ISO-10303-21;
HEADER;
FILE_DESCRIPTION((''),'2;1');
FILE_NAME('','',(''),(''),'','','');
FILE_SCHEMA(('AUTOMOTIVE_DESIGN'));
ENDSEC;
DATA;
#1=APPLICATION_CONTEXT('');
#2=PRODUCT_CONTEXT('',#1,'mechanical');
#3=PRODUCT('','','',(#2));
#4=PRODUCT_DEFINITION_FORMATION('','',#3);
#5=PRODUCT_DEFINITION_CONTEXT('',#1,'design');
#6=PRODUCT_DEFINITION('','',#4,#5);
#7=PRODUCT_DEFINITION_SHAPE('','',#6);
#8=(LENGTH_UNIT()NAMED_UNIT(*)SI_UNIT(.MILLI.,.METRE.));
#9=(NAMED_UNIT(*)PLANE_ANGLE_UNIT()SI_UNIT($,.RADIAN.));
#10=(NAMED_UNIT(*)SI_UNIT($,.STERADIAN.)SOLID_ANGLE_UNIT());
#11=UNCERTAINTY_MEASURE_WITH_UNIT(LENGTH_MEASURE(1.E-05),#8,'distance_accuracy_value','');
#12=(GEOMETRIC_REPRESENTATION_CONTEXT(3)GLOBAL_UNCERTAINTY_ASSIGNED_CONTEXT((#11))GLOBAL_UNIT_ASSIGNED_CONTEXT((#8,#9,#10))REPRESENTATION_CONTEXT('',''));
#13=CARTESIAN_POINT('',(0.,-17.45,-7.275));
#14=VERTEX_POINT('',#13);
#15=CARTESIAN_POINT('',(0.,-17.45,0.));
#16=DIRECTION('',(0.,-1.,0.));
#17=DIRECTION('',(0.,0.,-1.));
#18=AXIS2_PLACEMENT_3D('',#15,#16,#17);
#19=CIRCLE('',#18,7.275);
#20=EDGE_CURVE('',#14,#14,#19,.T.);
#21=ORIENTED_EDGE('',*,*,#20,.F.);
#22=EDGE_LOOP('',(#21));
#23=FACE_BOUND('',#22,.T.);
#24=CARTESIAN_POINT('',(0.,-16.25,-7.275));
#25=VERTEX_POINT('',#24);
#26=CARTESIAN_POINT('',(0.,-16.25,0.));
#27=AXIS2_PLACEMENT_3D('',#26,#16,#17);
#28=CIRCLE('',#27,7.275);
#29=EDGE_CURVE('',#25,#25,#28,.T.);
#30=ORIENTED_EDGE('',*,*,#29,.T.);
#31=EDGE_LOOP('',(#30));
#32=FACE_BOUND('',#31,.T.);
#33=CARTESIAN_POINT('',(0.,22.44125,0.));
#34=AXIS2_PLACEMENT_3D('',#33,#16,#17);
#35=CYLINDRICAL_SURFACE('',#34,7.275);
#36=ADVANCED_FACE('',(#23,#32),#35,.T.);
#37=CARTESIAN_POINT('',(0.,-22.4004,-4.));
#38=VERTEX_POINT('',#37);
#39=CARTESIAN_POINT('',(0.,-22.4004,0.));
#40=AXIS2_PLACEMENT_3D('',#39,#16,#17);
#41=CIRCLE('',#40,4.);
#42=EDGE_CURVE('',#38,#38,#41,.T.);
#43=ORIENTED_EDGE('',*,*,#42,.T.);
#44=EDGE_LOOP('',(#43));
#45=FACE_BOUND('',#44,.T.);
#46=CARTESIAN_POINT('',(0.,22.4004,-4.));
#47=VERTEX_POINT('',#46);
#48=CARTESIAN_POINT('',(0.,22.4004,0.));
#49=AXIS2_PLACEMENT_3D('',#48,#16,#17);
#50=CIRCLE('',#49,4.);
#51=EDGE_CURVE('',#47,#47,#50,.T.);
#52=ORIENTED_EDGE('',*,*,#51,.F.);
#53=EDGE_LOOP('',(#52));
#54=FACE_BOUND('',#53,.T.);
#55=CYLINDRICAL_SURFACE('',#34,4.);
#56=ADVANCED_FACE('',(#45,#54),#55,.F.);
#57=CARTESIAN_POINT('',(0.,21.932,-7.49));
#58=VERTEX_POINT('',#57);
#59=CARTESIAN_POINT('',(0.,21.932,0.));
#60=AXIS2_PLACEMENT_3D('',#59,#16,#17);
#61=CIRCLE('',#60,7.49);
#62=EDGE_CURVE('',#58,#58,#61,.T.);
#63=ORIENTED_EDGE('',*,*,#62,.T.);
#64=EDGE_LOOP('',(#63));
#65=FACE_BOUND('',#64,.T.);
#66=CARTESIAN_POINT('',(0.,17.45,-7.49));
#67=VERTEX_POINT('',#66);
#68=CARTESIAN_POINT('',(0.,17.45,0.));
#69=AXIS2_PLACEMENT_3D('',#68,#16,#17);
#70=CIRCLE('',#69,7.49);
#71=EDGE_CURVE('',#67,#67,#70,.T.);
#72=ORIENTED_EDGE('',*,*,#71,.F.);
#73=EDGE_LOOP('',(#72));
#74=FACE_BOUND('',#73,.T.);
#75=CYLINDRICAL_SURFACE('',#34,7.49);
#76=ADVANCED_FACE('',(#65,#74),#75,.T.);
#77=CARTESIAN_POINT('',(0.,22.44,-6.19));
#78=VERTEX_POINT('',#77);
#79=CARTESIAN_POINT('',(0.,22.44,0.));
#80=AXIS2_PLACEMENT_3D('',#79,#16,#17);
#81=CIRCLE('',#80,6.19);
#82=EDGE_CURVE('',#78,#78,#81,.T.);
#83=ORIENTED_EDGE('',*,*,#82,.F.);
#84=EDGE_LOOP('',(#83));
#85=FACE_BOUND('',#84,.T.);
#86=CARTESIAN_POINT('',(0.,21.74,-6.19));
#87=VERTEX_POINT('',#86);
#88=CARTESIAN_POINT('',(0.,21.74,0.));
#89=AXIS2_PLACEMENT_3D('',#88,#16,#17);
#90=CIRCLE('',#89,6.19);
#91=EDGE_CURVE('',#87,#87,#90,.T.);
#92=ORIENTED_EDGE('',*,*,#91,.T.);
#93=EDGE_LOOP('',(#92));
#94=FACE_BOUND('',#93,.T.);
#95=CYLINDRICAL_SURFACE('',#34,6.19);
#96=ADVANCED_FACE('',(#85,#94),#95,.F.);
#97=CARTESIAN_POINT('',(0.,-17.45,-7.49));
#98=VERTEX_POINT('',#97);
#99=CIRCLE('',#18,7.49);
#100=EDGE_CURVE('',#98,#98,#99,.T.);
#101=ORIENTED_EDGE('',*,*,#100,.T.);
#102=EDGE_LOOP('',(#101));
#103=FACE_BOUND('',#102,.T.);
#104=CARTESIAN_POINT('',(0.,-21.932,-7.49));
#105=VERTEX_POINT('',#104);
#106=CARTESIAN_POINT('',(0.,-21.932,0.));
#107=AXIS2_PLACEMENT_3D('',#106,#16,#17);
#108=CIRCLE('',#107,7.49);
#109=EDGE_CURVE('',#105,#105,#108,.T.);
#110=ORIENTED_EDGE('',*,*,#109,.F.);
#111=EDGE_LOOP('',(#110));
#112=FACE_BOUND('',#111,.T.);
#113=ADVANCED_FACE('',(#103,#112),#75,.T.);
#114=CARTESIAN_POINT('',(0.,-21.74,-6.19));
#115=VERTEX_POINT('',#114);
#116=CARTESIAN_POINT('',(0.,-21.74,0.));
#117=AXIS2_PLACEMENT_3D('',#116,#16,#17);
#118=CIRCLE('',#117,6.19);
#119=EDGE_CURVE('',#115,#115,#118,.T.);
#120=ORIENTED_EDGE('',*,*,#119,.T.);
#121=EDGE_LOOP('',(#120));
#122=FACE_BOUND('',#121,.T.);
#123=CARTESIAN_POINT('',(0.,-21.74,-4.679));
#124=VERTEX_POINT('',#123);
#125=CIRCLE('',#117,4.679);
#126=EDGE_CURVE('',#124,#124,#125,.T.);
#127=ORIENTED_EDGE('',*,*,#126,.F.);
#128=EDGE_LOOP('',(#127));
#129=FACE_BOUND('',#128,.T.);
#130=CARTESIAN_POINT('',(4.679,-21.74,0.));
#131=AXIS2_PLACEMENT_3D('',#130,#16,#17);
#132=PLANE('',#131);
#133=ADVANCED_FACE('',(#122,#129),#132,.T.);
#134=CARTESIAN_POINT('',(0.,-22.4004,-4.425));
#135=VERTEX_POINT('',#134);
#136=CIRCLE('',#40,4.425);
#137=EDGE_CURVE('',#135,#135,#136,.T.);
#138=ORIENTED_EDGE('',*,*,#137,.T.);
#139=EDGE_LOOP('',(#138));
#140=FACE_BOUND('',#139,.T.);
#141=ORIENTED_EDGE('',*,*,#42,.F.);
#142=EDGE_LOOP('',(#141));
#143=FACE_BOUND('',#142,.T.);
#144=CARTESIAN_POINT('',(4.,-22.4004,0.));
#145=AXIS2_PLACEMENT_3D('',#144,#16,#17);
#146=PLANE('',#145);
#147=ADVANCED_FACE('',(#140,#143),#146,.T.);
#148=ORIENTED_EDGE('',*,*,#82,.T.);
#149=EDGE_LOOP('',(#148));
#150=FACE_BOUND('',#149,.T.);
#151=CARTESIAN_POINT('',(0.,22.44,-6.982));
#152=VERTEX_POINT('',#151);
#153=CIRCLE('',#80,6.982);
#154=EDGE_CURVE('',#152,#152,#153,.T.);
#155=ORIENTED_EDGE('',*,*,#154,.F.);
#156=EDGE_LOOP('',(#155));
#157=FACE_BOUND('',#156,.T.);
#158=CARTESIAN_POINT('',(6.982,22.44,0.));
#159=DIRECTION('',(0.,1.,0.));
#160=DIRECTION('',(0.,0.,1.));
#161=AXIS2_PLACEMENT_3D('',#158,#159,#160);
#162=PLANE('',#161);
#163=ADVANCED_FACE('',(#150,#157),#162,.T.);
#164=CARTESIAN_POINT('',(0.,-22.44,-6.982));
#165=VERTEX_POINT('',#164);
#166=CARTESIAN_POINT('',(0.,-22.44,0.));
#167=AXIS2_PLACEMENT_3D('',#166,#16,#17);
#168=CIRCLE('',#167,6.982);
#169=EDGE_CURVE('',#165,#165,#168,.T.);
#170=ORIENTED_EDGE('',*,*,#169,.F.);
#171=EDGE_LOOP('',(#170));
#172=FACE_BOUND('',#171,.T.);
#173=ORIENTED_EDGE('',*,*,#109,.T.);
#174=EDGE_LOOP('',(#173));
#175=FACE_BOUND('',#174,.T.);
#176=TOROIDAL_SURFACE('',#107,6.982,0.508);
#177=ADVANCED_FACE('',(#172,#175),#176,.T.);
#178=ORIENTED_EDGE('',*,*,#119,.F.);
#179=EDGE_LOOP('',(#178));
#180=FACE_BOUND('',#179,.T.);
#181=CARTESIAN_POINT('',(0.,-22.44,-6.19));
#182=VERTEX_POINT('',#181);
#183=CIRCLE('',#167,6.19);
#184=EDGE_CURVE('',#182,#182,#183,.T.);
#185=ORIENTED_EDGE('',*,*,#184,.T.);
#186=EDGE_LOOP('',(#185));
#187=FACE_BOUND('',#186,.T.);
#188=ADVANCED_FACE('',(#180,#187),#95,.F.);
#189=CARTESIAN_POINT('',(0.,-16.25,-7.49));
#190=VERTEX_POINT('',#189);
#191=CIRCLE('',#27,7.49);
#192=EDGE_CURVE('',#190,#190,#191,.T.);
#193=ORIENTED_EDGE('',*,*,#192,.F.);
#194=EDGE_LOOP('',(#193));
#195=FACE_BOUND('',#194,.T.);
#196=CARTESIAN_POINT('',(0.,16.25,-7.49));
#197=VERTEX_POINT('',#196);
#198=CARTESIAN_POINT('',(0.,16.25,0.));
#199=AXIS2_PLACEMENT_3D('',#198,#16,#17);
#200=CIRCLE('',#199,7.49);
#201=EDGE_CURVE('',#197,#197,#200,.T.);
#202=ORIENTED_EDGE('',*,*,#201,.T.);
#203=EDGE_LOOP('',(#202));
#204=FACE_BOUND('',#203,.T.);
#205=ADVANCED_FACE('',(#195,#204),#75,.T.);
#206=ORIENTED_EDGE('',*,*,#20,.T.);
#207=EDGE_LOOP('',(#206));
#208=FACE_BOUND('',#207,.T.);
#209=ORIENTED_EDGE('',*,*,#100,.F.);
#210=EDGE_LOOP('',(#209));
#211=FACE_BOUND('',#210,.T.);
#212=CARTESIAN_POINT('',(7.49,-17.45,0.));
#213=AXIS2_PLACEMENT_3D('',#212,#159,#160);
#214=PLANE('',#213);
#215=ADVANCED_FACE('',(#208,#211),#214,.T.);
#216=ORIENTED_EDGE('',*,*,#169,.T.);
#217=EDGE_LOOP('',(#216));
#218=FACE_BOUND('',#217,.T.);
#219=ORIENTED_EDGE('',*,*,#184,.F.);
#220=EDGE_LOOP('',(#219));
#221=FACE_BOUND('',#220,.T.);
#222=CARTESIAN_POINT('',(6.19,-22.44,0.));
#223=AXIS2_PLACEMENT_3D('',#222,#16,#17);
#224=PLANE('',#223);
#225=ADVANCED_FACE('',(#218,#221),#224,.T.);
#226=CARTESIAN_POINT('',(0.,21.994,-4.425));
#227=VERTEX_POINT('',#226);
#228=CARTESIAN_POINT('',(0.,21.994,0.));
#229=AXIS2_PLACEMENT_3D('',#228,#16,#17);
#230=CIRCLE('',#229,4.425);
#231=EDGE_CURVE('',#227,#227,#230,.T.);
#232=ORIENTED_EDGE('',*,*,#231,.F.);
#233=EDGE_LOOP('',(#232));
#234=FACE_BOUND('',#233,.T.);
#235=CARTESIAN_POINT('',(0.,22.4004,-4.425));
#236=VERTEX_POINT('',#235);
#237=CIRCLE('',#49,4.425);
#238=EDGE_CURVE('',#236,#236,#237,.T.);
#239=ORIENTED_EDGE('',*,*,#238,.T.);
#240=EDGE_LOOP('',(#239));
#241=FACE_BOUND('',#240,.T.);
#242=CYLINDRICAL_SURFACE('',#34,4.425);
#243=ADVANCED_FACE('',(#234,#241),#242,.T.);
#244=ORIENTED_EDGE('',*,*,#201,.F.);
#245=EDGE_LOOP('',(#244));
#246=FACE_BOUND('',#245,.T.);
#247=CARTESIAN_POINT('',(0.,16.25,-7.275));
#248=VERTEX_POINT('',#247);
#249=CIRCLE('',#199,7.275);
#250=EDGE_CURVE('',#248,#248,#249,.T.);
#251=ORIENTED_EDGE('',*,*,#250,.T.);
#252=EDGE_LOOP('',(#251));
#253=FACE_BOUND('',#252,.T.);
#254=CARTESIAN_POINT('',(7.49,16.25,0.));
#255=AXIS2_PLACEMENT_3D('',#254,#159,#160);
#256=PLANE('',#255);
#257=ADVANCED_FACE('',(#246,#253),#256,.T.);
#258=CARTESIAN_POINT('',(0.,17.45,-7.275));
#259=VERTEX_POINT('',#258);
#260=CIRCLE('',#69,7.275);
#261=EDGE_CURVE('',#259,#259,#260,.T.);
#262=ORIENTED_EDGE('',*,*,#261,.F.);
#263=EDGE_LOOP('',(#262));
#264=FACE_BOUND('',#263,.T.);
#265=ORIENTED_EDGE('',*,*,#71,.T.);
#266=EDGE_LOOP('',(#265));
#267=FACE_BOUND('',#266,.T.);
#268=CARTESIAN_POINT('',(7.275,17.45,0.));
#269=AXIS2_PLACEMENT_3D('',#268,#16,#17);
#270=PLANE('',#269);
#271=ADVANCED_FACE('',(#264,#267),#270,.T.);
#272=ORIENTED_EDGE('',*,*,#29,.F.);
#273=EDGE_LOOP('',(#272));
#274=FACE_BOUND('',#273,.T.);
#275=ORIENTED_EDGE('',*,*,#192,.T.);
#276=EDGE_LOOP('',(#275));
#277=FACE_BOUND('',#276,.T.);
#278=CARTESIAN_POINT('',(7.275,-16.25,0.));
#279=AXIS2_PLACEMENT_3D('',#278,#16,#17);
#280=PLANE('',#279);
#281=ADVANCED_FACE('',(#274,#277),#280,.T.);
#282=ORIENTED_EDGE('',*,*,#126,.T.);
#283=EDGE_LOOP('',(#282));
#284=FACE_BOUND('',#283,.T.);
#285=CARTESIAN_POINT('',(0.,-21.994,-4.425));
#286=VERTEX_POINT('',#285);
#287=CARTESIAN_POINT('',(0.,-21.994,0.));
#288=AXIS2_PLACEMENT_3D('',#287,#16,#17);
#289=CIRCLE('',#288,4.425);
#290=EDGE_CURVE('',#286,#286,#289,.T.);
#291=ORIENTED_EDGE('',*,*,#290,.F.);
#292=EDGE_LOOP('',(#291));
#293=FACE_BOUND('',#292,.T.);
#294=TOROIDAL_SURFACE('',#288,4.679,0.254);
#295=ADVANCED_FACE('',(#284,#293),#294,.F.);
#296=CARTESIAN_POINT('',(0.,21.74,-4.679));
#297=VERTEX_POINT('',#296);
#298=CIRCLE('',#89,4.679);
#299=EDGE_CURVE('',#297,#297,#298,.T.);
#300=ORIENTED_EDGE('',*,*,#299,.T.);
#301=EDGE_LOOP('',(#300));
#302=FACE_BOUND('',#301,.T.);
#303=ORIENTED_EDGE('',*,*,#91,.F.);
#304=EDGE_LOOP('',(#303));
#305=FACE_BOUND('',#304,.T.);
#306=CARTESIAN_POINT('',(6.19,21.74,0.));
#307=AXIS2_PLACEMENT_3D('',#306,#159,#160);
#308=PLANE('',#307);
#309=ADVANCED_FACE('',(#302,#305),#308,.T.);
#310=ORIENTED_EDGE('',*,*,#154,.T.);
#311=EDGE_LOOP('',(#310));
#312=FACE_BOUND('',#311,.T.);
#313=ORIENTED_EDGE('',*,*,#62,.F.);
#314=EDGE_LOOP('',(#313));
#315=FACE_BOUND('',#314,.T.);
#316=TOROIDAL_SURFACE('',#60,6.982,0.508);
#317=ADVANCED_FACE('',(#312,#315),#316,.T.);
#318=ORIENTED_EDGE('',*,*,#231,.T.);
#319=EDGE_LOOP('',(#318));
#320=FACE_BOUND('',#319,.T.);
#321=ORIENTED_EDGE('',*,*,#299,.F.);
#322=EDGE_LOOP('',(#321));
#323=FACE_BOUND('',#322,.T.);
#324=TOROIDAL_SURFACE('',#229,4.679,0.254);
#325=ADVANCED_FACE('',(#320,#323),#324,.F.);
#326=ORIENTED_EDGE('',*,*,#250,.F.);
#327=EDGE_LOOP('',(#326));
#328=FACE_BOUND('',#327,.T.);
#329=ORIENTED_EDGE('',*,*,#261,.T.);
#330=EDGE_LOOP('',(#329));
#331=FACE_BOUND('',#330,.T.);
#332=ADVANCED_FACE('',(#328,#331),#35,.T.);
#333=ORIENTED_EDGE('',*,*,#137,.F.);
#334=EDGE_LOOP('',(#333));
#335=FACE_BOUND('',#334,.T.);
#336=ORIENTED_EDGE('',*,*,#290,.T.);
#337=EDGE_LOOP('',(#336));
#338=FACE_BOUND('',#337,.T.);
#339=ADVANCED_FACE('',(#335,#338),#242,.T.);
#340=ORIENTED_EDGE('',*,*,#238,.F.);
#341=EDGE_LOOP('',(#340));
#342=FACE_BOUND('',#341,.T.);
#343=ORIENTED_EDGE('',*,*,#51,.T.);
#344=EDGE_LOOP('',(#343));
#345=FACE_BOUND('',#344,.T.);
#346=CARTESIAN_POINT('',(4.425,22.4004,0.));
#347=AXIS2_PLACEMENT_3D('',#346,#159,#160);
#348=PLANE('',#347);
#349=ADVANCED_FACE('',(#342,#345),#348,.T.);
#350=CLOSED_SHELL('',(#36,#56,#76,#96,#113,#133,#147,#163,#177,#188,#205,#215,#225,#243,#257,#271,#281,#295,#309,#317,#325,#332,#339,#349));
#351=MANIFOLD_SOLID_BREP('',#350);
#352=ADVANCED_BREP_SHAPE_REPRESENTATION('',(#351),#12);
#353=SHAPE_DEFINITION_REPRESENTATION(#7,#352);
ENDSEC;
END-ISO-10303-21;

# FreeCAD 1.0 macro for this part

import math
import FreeCAD as App
import Part
import Sketcher

doc = App.newDocument("Part")
body = doc.addObject("PartDesign::Body", "Body")

sketch1 = body.newObject("Sketcher::SketchObject", "Sketch")
sketch1.AttachmentSupport = (doc.getObject("XY_Plane"), [""])
sketch1.MapMode = "FlatFace"
sketch1.addGeometry(Part.LineSegment(App.Vector(4.42, 22.4, 0), App.Vector(4, 22.4, 0)), False)
sketch1.addGeometry(Part.LineSegment(App.Vector(4, 22.4, 0), App.Vector(4, -22.4, 0)), False)
sketch1.addGeometry(Part.LineSegment(App.Vector(4, -22.4, 0), App.Vector(4.42, -22.4, 0)), False)
sketch1.addGeometry(Part.LineSegment(App.Vector(4.42, -22.4, 0), App.Vector(4.42, -21.99, 0)), False)
sketch1.addGeometry(Part.ArcOfCircle(Part.Circle(App.Vector(4.68, -21.99, 0), App.Vector(0, 0, 1), 0.25), math.radians(90), math.radians(180)), False)
sketch1.addGeometry(Part.LineSegment(App.Vector(4.68, -21.74, 0), App.Vector(6.19, -21.74, 0)), False)
sketch1.addGeometry(Part.LineSegment(App.Vector(6.19, -21.74, 0), App.Vector(6.19, -22.44, 0)), False)
sketch1.addGeometry(Part.LineSegment(App.Vector(6.19, -22.44, 0), App.Vector(6.98, -22.44, 0)), False)
sketch1.addGeometry(Part.ArcOfCircle(Part.Circle(App.Vector(6.98, -21.93, 0), App.Vector(0, 0, 1), 0.51), math.radians(-90), math.radians(0)), False)
sketch1.addGeometry(Part.LineSegment(App.Vector(7.49, -21.93, 0), App.Vector(7.49, -17.45, 0)), False)
sketch1.addGeometry(Part.LineSegment(App.Vector(7.49, -17.45, 0), App.Vector(7.28, -17.45, 0)), False)
sketch1.addGeometry(Part.LineSegment(App.Vector(7.28, -17.45, 0), App.Vector(7.28, -16.25, 0)), False)
sketch1.addGeometry(Part.LineSegment(App.Vector(7.28, -16.25, 0), App.Vector(7.49, -16.25, 0)), False)
sketch1.addGeometry(Part.LineSegment(App.Vector(7.49, -16.25, 0), App.Vector(7.49, 16.25, 0)), False)
sketch1.addGeometry(Part.LineSegment(App.Vector(7.49, 16.25, 0), App.Vector(7.28, 16.25, 0)), False)
sketch1.addGeometry(Part.LineSegment(App.Vector(7.28, 16.25, 0), App.Vector(7.28, 17.45, 0)), False)
sketch1.addGeometry(Part.LineSegment(App.Vector(7.28, 17.45, 0), App.Vector(7.49, 17.45, 0)), False)
sketch1.addGeometry(Part.LineSegment(App.Vector(7.49, 17.45, 0), App.Vector(7.49, 21.93, 0)), False)
sketch1.addGeometry(Part.ArcOfCircle(Part.Circle(App.Vector(6.98, 21.93, 0), App.Vector(0, 0, 1), 0.51), math.radians(0), math.radians(90)), False)
sketch1.addGeometry(Part.LineSegment(App.Vector(6.98, 22.44, 0), App.Vector(6.19, 22.44, 0)), False)
sketch1.addGeometry(Part.LineSegment(App.Vector(6.19, 22.44, 0), App.Vector(6.19, 21.74, 0)), False)
sketch1.addGeometry(Part.LineSegment(App.Vector(6.19, 21.74, 0), App.Vector(4.68, 21.74, 0)), False)
sketch1.addGeometry(Part.ArcOfCircle(Part.Circle(App.Vector(4.68, 21.99, 0), App.Vector(0, 0, 1), 0.25), math.radians(-180), math.radians(-90)), False)
sketch1.addGeometry(Part.LineSegment(App.Vector(4.42, 21.99, 0), App.Vector(4.42, 22.4, 0)), False)
sketch1.addConstraint(Sketcher.Constraint("Coincident", 0, 2, 1, 1))
sketch1.addConstraint(Sketcher.Constraint("Coincident", 1, 2, 2, 1))
sketch1.addConstraint(Sketcher.Constraint("Coincident", 2, 2, 3, 1))
sketch1.addConstraint(Sketcher.Constraint("Tangent", 3, 2, 4, 2))
sketch1.addConstraint(Sketcher.Constraint("Tangent", 4, 1, 5, 1))
sketch1.addConstraint(Sketcher.Constraint("Coincident", 5, 2, 6, 1))
sketch1.addConstraint(Sketcher.Constraint("Coincident", 6, 2, 7, 1))
sketch1.addConstraint(Sketcher.Constraint("Tangent", 7, 2, 8, 1))
sketch1.addConstraint(Sketcher.Constraint("Tangent", 8, 2, 9, 1))
sketch1.addConstraint(Sketcher.Constraint("Coincident", 9, 2, 10, 1))
sketch1.addConstraint(Sketcher.Constraint("Coincident", 10, 2, 11, 1))
sketch1.addConstraint(Sketcher.Constraint("Coincident", 11, 2, 12, 1))
sketch1.addConstraint(Sketcher.Constraint("Coincident", 12, 2, 13, 1))
sketch1.addConstraint(Sketcher.Constraint("Coincident", 13, 2, 14, 1))
sketch1.addConstraint(Sketcher.Constraint("Coincident", 14, 2, 15, 1))
sketch1.addConstraint(Sketcher.Constraint("Coincident", 15, 2, 16, 1))
sketch1.addConstraint(Sketcher.Constraint("Coincident", 16, 2, 17, 1))
sketch1.addConstraint(Sketcher.Constraint("Tangent", 17, 2, 18, 1))
sketch1.addConstraint(Sketcher.Constraint("Tangent", 18, 2, 19, 1))
sketch1.addConstraint(Sketcher.Constraint("Coincident", 19, 2, 20, 1))
sketch1.addConstraint(Sketcher.Constraint("Coincident", 20, 2, 21, 1))
sketch1.addConstraint(Sketcher.Constraint("Tangent", 21, 2, 22, 2))
sketch1.addConstraint(Sketcher.Constraint("Tangent", 22, 1, 23, 1))
sketch1.addConstraint(Sketcher.Constraint("Coincident", 23, 2, 0, 1))
sketch1.addConstraint(Sketcher.Constraint("Horizontal", 0))
sketch1.addConstraint(Sketcher.Constraint("Vertical", 1))
sketch1.addConstraint(Sketcher.Constraint("Horizontal", 2))
sketch1.addConstraint(Sketcher.Constraint("Vertical", 3))
sketch1.addConstraint(Sketcher.Constraint("Horizontal", 5))
sketch1.addConstraint(Sketcher.Constraint("Vertical", 6))
sketch1.addConstraint(Sketcher.Constraint("Horizontal", 7))
sketch1.addConstraint(Sketcher.Constraint("Vertical", 9))
sketch1.addConstraint(Sketcher.Constraint("Horizontal", 10))
sketch1.addConstraint(Sketcher.Constraint("Vertical", 11))
sketch1.addConstraint(Sketcher.Constraint("Horizontal", 12))
sketch1.addConstraint(Sketcher.Constraint("Vertical", 13))
sketch1.addConstraint(Sketcher.Constraint("Horizontal", 14))
sketch1.addConstraint(Sketcher.Constraint("Vertical", 15))
sketch1.addConstraint(Sketcher.Constraint("Horizontal", 16))
sketch1.addConstraint(Sketcher.Constraint("Vertical", 17))
sketch1.addConstraint(Sketcher.Constraint("Horizontal", 19))
sketch1.addConstraint(Sketcher.Constraint("Vertical", 20))
sketch1.addConstraint(Sketcher.Constraint("Horizontal", 21))
sketch1.addConstraint(Sketcher.Constraint("Vertical", 23))
sketch1.addConstraint(Sketcher.Constraint("Equal", 8, 18))
sketch1.addConstraint(Sketcher.Constraint("Equal", 4, 22))
sketch1.addConstraint(Sketcher.Constraint("Symmetric", 8, 3, 18, 3, -1))
sketch1.addConstraint(Sketcher.Constraint("Symmetric", 4, 3, 22, 3, -1))
sketch1.addConstraint(Sketcher.Constraint("Symmetric", 11, 2, 14, 2, -1))
sketch1.addConstraint(Sketcher.Constraint("Vertical", 9, 2, 12, 2))
sketch1.addConstraint(Sketcher.Constraint("Vertical", 6, 2, 19, 2))
sketch1.addConstraint(Sketcher.Constraint("Equal", 11, 15))
sketch1.addConstraint(Sketcher.Constraint("Equal", 3, 23))
sketch1.addConstraint(Sketcher.Constraint("DistanceY", 6, 2, 6, 1, 0.7))
sketch1.addConstraint(Sketcher.Constraint("DistanceY", 11, 1, 11, 2, 1.2))
sketch1.addConstraint(Sketcher.Constraint("DistanceY", 13, 1, 13, 2, 32.5))
sketch1.addConstraint(Sketcher.Constraint("DistanceX", -1, 1, 0, 2, 4.0))
sketch1.addConstraint(Sketcher.Constraint("Radius", 4, 0.254))
sketch1.addConstraint(Sketcher.Constraint("Radius", 8, 0.508))
sketch1.addConstraint(Sketcher.Constraint("DistanceX", 5, 2, 8, 2, 1.3))
sketch1.addConstraint(Sketcher.Constraint("DistanceX", 0, 2, 0, 1, 0.425))
sketch1.addConstraint(Sketcher.Constraint("DistanceX", 5, 1, 5, 2, 1.511))
sketch1.addConstraint(Sketcher.Constraint("DistanceX", 10, 2, 10, 1, 0.215))
sketch1.addConstraint(Sketcher.Constraint("DistanceY", 9, 1, 9, 2, 4.482))
sketch1.addConstraint(Sketcher.Constraint("DistanceY", 1, 2, 1, 1, 44.8008))
revolution = body.newObject("PartDesign::Revolution", "Revolution")
revolution.Profile = sketch1
revolution.ReferenceAxis = (sketch1, ["V_Axis"])
revolution.Angle = 360

doc.recompute()
